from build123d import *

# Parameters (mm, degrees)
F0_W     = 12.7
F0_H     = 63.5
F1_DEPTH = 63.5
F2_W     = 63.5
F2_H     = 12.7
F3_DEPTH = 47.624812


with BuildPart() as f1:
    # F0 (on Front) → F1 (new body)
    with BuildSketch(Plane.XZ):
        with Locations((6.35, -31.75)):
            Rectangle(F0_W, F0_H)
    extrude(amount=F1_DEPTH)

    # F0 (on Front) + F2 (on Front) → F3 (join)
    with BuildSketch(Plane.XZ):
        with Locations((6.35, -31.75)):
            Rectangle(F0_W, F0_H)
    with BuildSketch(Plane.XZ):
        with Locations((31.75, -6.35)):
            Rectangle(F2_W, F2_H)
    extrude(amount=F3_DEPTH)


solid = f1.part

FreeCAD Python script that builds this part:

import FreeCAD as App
import Part
import Sketcher
Q = App.Units.Quantity

doc = App.newDocument("Part")
params = doc.addObject("Spreadsheet::Sheet", "Params")
for row, (alias, value) in enumerate([
    ("sketch1_width", "0.5 in"),
    ("sketch1_height", "2.5 in"),
    ("pad1_length", "2.5 in"),
    ("sketch2_width", "2 in"),
    ("sketch2_width2", "0.5 in"),
    ("pad2_length", "47.624812 mm"),
], start=1):
    params.set(f"A{row}", alias)
    params.set(f"B{row}", "=" + value)
    params.setAlias(f"B{row}", alias)

body = doc.addObject("PartDesign::Body", "Body")

# Sketch on XZ plane
sketch1 = doc.addObject("Sketcher::SketchObject", "Sketch")
body.addObject(sketch1)
sketch1.AttachmentSupport = (doc.XZ_Plane, [""])
sketch1.MapMode = "FlatFace"
sketch1.addGeometry([
    Part.LineSegment(App.Vector(0, 0, 0), App.Vector(0, -64, 0)),
    Part.LineSegment(App.Vector(0, -64, 0), App.Vector(13, -64, 0)),
    Part.LineSegment(App.Vector(13, -64, 0), App.Vector(13, 0, 0)),
    Part.LineSegment(App.Vector(13, 0, 0), App.Vector(0, 0, 0)),
], False)
sketch1.addConstraint([
    Sketcher.Constraint("Coincident", 0, 2, 1, 1),
    Sketcher.Constraint("Coincident", 1, 2, 2, 1),
    Sketcher.Constraint("Coincident", 2, 2, 3, 1),
    Sketcher.Constraint("Coincident", 3, 2, 0, 1),
    Sketcher.Constraint("Vertical", 0),
    Sketcher.Constraint("Horizontal", 1),
    Sketcher.Constraint("Vertical", 2),
    Sketcher.Constraint("Horizontal", 3),
    Sketcher.Constraint("Coincident", 3, 2, -1, 1),
    Sketcher.Constraint("DistanceX", 1, 1, 1, 2, Q("0.5 in")),
    Sketcher.Constraint("DistanceY", 0, 2, 0, 1, Q("2.5 in")),
])
sketch1.setExpression("Constraints[9]", "Params.sketch1_width")
sketch1.setExpression("Constraints[10]", "Params.sketch1_height")
pad1 = doc.addObject("PartDesign::Pad", "Pad")
body.addObject(pad1)
pad1.Profile = sketch1
pad1.setExpression("Length", "Params.pad1_length")

# Sketch on XZ plane
sketch2 = doc.addObject("Sketcher::SketchObject", "Sketch001")
body.addObject(sketch2)
sketch2.AttachmentSupport = (doc.XZ_Plane, [""])
sketch2.MapMode = "FlatFace"
sketch2.addGeometry([
    Part.LineSegment(App.Vector(0, -64, 0), App.Vector(13, -64, 0)),  # 0
    Part.LineSegment(App.Vector(13, -64, 0), App.Vector(13, -13, 0)),  # 1
    Part.LineSegment(App.Vector(13, -13, 0), App.Vector(64, -13, 0)),  # 2
    Part.LineSegment(App.Vector(64, -13, 0), App.Vector(64, 0, 0)),  # 3
    Part.LineSegment(App.Vector(64, 0, 0), App.Vector(0, 0, 0)),  # 4
    Part.LineSegment(App.Vector(0, 0, 0), App.Vector(0, -64, 0)),  # 5
], False)
sketch2.addConstraint([
    Sketcher.Constraint("Coincident", 0, 2, 1, 1),
    Sketcher.Constraint("Coincident", 1, 2, 2, 1),
    Sketcher.Constraint("Coincident", 2, 2, 3, 1),
    Sketcher.Constraint("Coincident", 3, 2, 4, 1),
    Sketcher.Constraint("Coincident", 4, 2, 5, 1),
    Sketcher.Constraint("Coincident", 5, 2, 0, 1),
    Sketcher.Constraint("Horizontal", 0),
    Sketcher.Constraint("Vertical", 1),
    Sketcher.Constraint("Horizontal", 2),
    Sketcher.Constraint("Vertical", 3),
    Sketcher.Constraint("Horizontal", 4),
    Sketcher.Constraint("Vertical", 5),
    Sketcher.Constraint("Coincident", 4, 2, -1, 1),
    Sketcher.Constraint("Equal", 2, 1),
    Sketcher.Constraint("Equal", 0, 3),
    Sketcher.Constraint("DistanceX", 2, 1, 2, 2, Q("2 in")),
    Sketcher.Constraint("DistanceX", 0, 1, 0, 2, Q("0.5 in")),
])
sketch2.setExpression("Constraints[15]", "Params.sketch2_width")
sketch2.setExpression("Constraints[16]", "Params.sketch2_width2")
pad2 = doc.addObject("PartDesign::Pad", "Pad001")
body.addObject(pad2)
pad2.Profile = sketch2
pad2.setExpression("Length", "Params.pad2_length")

doc.recompute()
